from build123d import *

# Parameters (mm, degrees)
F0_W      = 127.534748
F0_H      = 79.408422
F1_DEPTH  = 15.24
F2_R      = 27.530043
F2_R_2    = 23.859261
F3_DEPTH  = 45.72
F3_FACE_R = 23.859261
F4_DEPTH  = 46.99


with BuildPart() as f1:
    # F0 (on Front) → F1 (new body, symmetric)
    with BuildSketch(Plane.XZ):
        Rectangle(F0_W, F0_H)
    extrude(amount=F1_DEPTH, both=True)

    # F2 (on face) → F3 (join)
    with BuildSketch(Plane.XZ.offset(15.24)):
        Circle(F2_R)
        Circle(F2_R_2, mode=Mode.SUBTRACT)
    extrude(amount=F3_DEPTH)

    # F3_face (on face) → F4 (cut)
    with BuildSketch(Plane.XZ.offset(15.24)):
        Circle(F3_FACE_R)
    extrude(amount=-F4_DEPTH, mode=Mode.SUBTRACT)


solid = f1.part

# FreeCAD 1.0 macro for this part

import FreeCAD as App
import Part
import Sketcher

V = App.Vector
Q = App.Units.Quantity


def add_polygon(sketch, points):
    """Adds a closed chain of lines whose ends are joined by coincident constraints."""
    first, n = sketch.GeometryCount, len(points)
    for a, b in zip(points, points[1:] + points[:1]):
        sketch.addGeometry(Part.LineSegment(App.Vector(*a, 0), App.Vector(*b, 0)), False)
    for i in range(n):
        sketch.addConstraint(Sketcher.Constraint("Coincident", first + i, 2, first + (i + 1) % n, 1))

doc = App.newDocument("Part")
body = doc.addObject("PartDesign::Body", "Body")

sketch1 = body.newObject("Sketcher::SketchObject", "Sketch")
sketch1.AttachmentSupport = (doc.getObject("XZ_Plane"), [""])
sketch1.MapMode = "FlatFace"
add_polygon(sketch1, [(-64, 40), (-64, -40), (64, -40), (64, 40)])
sketch1.addConstraint(Sketcher.Constraint("Vertical", 0))
sketch1.addConstraint(Sketcher.Constraint("Horizontal", 1))
sketch1.addConstraint(Sketcher.Constraint("Vertical", 2))
sketch1.addConstraint(Sketcher.Constraint("Horizontal", 3))
sketch1.addConstraint(Sketcher.Constraint("Symmetric", 0, 2, 2, 2, -1, 1))
sketch1.addConstraint(Sketcher.Constraint("DistanceY", 0, 2, 0, 1, Q("79.408422 mm")))
sketch1.addConstraint(Sketcher.Constraint("DistanceX", 1, 1, 1, 2, Q("127.534748 mm")))
pad1 = body.newObject("PartDesign::Pad", "Pad")
pad1.Profile = sketch1
pad1.Length = Q("1.2 in")
pad1.Midplane = True

sketch2 = body.newObject("Sketcher::SketchObject", "Sketch001")
sketch2.AttachmentSupport = (doc.getObject("XZ_Plane"), [""])
sketch2.MapMode = "FlatFace"
sketch2.AttachmentOffset = App.Placement(V(0, 0, 0.6 * 25.4), App.Rotation())
sketch2.addGeometry(Part.Circle(V(0, 0, 0), V(0, 0, 1), 28), False)
sketch2.addGeometry(Part.Circle(V(0, 0, 0), V(0, 0, 1), 24), False)
sketch2.addConstraint(Sketcher.Constraint("Coincident", 0, 3, -1, 1))
sketch2.addConstraint(Sketcher.Constraint("Coincident", 1, 3, -1, 1))
sketch2.addConstraint(Sketcher.Constraint("Diameter", 0, Q("55.060086 mm")))
sketch2.addConstraint(Sketcher.Constraint("Diameter", 1, Q("47.718522 mm")))
pad2 = body.newObject("PartDesign::Pad", "Pad001")
pad2.Profile = sketch2
pad2.Length = Q("1.8 in")

sketch3 = body.newObject("Sketcher::SketchObject", "Sketch002")
sketch3.AttachmentSupport = (doc.getObject("XZ_Plane"), [""])
sketch3.MapMode = "FlatFace"
sketch3.AttachmentOffset = App.Placement(V(0, 0, 0.6 * 25.4), App.Rotation())
sketch3.addGeometry(Part.Circle(V(0, 0, 0), V(0, 0, 1), 24), False)
sketch3.addConstraint(Sketcher.Constraint("Coincident", 0, 3, -1, 1))
sketch3.addConstraint(Sketcher.Constraint("Diameter", 0, Q("47.718522 mm")))
pocket1 = body.newObject("PartDesign::Pocket", "Pocket")
pocket1.Profile = sketch3
pocket1.Length = Q("1.85 in")

doc.recompute()
